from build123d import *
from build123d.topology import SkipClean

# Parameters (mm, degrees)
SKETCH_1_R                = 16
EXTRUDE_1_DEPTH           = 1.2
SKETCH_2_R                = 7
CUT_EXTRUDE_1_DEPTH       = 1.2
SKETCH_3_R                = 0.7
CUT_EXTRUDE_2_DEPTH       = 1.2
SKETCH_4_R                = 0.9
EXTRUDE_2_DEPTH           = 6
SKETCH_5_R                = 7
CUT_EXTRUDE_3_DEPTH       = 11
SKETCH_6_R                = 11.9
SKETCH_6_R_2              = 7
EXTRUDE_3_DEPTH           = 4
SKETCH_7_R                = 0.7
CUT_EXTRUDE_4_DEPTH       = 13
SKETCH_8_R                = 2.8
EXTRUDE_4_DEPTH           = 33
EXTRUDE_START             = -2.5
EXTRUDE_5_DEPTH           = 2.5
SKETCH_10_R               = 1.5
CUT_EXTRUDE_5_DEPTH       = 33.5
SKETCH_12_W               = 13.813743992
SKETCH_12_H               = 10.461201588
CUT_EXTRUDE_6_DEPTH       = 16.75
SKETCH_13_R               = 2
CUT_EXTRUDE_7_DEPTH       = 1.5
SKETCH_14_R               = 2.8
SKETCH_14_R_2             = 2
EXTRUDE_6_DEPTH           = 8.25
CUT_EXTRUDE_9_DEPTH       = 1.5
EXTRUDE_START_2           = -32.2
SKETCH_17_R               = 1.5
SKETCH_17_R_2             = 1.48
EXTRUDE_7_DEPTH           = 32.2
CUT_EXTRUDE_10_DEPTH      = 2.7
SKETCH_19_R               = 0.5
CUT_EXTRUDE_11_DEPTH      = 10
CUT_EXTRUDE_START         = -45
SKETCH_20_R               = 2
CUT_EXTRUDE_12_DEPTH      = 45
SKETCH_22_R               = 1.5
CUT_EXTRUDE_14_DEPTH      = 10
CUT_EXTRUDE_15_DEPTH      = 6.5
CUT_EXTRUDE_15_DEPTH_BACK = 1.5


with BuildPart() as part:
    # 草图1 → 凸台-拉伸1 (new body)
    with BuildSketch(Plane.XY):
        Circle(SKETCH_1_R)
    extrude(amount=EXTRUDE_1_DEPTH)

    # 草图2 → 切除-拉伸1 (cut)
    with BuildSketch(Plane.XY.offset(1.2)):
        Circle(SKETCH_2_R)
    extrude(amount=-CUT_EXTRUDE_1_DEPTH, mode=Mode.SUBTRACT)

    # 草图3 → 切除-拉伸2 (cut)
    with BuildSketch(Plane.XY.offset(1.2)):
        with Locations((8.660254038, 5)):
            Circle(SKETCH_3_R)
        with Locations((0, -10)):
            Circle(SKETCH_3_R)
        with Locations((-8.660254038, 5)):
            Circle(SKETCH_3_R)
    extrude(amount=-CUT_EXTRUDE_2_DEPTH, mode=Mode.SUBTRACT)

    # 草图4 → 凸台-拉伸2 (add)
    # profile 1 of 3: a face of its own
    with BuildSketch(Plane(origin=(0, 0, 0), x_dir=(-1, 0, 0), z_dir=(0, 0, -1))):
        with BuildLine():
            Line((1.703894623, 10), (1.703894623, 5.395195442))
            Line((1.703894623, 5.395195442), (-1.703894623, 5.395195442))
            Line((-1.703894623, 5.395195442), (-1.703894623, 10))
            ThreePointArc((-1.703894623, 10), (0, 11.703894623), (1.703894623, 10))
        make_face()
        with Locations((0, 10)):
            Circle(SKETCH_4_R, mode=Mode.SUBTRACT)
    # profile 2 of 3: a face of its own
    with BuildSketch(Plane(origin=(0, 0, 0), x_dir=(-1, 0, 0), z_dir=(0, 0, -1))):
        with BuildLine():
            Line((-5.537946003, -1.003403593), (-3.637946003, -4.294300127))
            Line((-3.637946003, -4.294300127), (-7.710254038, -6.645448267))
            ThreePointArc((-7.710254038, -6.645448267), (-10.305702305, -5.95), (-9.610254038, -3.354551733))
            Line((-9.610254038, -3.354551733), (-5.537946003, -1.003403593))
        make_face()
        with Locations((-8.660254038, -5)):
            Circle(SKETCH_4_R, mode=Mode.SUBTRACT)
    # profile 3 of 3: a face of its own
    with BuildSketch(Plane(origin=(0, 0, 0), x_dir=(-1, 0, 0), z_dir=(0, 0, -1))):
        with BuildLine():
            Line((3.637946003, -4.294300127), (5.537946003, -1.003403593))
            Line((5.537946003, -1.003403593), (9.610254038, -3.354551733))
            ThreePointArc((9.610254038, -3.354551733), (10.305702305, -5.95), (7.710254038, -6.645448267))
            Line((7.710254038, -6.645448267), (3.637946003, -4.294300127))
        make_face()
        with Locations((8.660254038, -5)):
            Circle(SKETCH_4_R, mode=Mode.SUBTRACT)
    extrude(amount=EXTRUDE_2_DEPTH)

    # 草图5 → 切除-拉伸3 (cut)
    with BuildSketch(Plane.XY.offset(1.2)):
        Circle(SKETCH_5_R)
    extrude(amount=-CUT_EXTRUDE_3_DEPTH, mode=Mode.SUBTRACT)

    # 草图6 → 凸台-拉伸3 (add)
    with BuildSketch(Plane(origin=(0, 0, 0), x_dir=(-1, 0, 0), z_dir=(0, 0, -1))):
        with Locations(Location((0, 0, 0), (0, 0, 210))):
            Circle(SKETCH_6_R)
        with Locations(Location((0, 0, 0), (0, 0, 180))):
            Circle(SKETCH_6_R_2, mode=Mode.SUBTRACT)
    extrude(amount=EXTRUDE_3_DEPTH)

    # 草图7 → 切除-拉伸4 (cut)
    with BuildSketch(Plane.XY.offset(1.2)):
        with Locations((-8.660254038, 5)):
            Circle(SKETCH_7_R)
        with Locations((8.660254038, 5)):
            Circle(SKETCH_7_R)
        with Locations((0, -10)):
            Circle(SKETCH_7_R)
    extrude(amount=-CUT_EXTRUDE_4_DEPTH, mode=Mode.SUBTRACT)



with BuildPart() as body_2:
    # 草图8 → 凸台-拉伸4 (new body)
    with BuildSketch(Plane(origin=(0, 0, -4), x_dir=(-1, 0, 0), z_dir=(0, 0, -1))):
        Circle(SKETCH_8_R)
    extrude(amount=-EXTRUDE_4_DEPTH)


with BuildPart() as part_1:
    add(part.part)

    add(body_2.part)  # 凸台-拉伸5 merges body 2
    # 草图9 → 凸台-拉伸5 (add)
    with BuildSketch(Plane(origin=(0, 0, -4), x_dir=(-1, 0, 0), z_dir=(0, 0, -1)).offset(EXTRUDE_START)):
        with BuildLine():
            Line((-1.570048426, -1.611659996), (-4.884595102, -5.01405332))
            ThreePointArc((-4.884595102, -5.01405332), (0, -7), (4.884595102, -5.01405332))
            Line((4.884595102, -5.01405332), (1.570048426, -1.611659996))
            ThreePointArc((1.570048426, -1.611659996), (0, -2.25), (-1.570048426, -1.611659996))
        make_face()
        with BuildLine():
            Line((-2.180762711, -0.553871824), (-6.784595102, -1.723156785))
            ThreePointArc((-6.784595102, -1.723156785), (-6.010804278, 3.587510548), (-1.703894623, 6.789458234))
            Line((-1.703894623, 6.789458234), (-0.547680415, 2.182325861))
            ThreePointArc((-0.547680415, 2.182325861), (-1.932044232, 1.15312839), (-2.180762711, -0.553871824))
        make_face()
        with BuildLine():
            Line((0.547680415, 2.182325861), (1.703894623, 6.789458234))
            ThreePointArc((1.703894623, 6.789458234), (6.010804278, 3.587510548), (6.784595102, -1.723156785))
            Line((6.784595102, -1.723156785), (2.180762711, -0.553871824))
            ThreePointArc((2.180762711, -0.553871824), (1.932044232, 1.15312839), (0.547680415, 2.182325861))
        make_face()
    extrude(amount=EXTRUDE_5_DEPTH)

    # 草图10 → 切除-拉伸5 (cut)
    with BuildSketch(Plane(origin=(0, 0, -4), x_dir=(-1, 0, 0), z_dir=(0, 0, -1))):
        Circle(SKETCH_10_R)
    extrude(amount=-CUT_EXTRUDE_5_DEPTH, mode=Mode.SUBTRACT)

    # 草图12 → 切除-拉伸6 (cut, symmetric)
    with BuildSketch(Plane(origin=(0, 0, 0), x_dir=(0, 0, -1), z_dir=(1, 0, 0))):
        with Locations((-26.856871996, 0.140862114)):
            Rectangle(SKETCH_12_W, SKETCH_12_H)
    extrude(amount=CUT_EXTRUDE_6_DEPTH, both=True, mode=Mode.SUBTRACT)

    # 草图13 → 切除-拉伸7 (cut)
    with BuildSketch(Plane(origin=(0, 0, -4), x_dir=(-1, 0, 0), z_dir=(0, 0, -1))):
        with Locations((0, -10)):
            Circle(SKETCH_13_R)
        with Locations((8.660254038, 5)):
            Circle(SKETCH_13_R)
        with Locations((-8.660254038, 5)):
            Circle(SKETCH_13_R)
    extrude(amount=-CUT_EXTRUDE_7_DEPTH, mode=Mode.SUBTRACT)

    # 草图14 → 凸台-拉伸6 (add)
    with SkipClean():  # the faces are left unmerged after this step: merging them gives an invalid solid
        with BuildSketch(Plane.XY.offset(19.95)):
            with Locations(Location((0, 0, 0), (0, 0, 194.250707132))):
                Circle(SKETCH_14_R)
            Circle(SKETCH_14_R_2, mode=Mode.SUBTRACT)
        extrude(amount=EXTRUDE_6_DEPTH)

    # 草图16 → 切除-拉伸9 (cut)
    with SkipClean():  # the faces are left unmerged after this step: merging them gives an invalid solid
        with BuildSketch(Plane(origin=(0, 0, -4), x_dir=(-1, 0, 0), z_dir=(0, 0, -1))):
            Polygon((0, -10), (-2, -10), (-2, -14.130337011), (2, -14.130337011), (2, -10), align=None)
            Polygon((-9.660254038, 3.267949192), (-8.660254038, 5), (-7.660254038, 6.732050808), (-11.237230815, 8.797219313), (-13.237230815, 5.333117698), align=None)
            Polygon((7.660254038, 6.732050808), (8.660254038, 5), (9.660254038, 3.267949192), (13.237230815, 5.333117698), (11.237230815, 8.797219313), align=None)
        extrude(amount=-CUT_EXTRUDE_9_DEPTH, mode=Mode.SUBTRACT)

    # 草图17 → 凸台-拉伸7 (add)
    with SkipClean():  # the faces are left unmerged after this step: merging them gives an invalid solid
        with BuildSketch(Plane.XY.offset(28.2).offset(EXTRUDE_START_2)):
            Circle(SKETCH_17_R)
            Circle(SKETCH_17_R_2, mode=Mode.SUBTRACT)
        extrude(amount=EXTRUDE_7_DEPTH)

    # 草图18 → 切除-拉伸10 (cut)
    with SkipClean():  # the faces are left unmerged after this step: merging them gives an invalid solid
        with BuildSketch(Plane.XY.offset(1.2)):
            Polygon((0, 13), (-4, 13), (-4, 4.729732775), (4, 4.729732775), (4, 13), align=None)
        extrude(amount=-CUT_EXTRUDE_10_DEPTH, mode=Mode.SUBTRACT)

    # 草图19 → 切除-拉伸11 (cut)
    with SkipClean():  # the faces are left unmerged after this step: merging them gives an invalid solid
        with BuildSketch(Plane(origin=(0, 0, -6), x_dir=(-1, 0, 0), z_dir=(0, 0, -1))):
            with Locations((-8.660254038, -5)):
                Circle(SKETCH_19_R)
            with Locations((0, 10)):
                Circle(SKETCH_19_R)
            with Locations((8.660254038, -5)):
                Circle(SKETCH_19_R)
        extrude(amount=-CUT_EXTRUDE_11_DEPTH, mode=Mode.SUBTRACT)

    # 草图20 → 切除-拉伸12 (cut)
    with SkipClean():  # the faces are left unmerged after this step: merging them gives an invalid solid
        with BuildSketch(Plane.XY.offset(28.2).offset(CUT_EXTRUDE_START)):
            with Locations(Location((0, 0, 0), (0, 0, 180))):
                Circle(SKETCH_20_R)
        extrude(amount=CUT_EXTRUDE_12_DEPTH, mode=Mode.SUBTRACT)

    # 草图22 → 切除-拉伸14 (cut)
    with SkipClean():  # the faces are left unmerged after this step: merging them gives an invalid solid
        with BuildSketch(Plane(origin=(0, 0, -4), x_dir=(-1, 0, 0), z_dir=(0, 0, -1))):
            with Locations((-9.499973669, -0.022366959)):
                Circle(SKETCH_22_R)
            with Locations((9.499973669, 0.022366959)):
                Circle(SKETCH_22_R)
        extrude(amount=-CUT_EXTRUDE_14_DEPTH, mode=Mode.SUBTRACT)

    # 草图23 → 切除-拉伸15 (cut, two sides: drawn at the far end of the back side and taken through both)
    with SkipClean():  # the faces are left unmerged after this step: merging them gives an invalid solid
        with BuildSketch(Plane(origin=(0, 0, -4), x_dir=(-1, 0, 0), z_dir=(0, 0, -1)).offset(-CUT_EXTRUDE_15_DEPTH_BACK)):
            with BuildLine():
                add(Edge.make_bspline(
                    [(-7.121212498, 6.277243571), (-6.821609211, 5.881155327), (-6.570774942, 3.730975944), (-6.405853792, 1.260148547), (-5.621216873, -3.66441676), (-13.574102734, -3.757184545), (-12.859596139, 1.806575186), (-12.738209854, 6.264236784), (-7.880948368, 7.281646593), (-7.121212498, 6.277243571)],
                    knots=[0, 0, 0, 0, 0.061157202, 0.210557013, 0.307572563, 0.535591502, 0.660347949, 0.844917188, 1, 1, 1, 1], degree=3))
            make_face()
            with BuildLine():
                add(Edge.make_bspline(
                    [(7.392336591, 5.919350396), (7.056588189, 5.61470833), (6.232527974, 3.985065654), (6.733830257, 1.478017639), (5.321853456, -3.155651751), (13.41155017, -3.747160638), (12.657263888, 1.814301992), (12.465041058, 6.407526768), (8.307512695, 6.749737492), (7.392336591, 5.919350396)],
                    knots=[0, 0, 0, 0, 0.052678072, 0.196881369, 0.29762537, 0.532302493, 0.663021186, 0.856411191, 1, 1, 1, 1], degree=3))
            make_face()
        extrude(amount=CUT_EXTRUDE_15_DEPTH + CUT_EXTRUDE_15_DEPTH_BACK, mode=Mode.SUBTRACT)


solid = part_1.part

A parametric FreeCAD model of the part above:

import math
import FreeCAD as App
import Part
import Sketcher
Q = App.Units.Quantity

doc = App.newDocument("Part")
body = doc.addObject("PartDesign::Body", "Body")

# Sketch on XY plane
sketch1 = body.newObject("Sketcher::SketchObject", "Sketch")
sketch1.AttachmentSupport = (doc.getObject("XY_Plane"), [""])
sketch1.MapMode = "FlatFace"
sketch1.addGeometry(Part.Circle(App.Vector(0, 0, 0), App.Vector(0, 0, 1), 16), False)
sketch1.addConstraint([
    Sketcher.Constraint("Coincident", 0, 3, -1, 1),
    Sketcher.Constraint("Diameter", 0, Q("32 mm")),
])
pad1 = body.newObject("PartDesign::Pad", "Pad")
pad1.Profile = sketch1
pad1.Length = 1.2

# Sketch on XY plane
sketch2 = body.newObject("Sketcher::SketchObject", "Sketch001")
sketch2.AttachmentSupport = (doc.getObject("XY_Plane"), [""])
sketch2.MapMode = "FlatFace"
sketch2.AttachmentOffset = App.Placement(App.Vector(0, 0, 1.2), App.Rotation())
sketch2.addGeometry(Part.Circle(App.Vector(0, 0, 0), App.Vector(0, 0, 1), 7), False)
sketch2.addConstraint([
    Sketcher.Constraint("Coincident", 0, 3, -1, 1),
    Sketcher.Constraint("Diameter", 0, Q("14 mm")),
])
pocket1 = body.newObject("PartDesign::Pocket", "Pocket")
pocket1.Profile = sketch2
pocket1.Length = 1.2

# Sketch on XY plane
sketch3 = body.newObject("Sketcher::SketchObject", "Sketch002")
sketch3.AttachmentSupport = (doc.getObject("XY_Plane"), [""])
sketch3.MapMode = "FlatFace"
sketch3.AttachmentOffset = App.Placement(App.Vector(0, 0, 1.2), App.Rotation())
sketch3.addGeometry([
    Part.Circle(App.Vector(8.660254, 5, 0), App.Vector(0, 0, 1), 0.7),
    Part.Circle(App.Vector(0, -10, 0), App.Vector(0, 0, 1), 0.7),
    Part.Circle(App.Vector(-8.660254, 5, 0), App.Vector(0, 0, 1), 0.7),
], False)
sketch3.addConstraint([
    Sketcher.Constraint("Equal", 0, 1),
    Sketcher.Constraint("Equal", 1, 2),
    Sketcher.Constraint("Symmetric", 0, 3, 2, 3, -2),
    Sketcher.Constraint("PointOnObject", 1, 3, -2),
    Sketcher.Constraint("Diameter", 0, Q("1.4 mm")),
    Sketcher.Constraint("DistanceY", -1, 1, 0, 3, Q("5 mm")),
    Sketcher.Constraint("DistanceY", 1, 3, -1, 1, Q("10 mm")),
    Sketcher.Constraint("DistanceX", 2, 3, 0, 3, Q("17.320508 mm")),
])
pocket2 = body.newObject("PartDesign::Pocket", "Pocket001")
pocket2.Profile = sketch3
pocket2.Length = 1.2

# Sketch on XY plane
sketch4 = body.newObject("Sketcher::SketchObject", "Sketch003")
sketch4.AttachmentSupport = (doc.getObject("XY_Plane"), [""])
sketch4.MapMode = "FlatFace"
sketch4.addGeometry([
    Part.LineSegment(App.Vector(-1.703895, 5.395195, 0), App.Vector(-1.703895, 10, 0)),  # 0
    Part.ArcOfCircle(Part.Circle(App.Vector(0, 10, 0), App.Vector(0, 0, 1), 1.703895), math.radians(0), math.radians(180)),  # 1
    Part.LineSegment(App.Vector(1.703895, 10, 0), App.Vector(1.703895, 5.395195, 0)),  # 2
    Part.LineSegment(App.Vector(1.703895, 5.395195, 0), App.Vector(-1.703895, 5.395195, 0)),  # 3
    Part.Circle(App.Vector(0, 10, 0), App.Vector(0, 0, 1), 0.9),  # 4
    Part.LineSegment(App.Vector(3.637946, -4.2943, 0), App.Vector(5.537946, -1.003404, 0)),  # 5
    Part.LineSegment(App.Vector(5.537946, -1.003404, 0), App.Vector(9.610254, -3.354552, 0)),  # 6
    Part.ArcOfCircle(Part.Circle(App.Vector(8.660254, -5, 0), App.Vector(0, 0, 1), 1.9), math.radians(-120), math.radians(60)),  # 7
    Part.LineSegment(App.Vector(7.710254, -6.645448, 0), App.Vector(3.637946, -4.2943, 0)),  # 8
    Part.Circle(App.Vector(8.660254, -5, 0), App.Vector(0, 0, 1), 0.9),  # 9
    Part.LineSegment(App.Vector(-5.537946, -1.003404, 0), App.Vector(-3.637946, -4.2943, 0)),  # 10
    Part.LineSegment(App.Vector(-3.637946, -4.2943, 0), App.Vector(-7.710254, -6.645448, 0)),  # 11
    Part.ArcOfCircle(Part.Circle(App.Vector(-8.660254, -5, 0), App.Vector(0, 0, 1), 1.9), math.radians(120), math.radians(300)),  # 12
    Part.LineSegment(App.Vector(-9.610254, -3.354552, 0), App.Vector(-5.537946, -1.003404, 0)),  # 13
    Part.Circle(App.Vector(-8.660254, -5, 0), App.Vector(0, 0, 1), 0.9),  # 14
], False)
sketch4.addConstraint([
    Sketcher.Constraint("Tangent", 0, 2, 1, 2),
    Sketcher.Constraint("Tangent", 1, 1, 2, 1),
    Sketcher.Constraint("Coincident", 2, 2, 3, 1),
    Sketcher.Constraint("Coincident", 3, 2, 0, 1),
    Sketcher.Constraint("Coincident", 5, 2, 6, 1),
    Sketcher.Constraint("Tangent", 6, 2, 7, 2),
    Sketcher.Constraint("Tangent", 7, 1, 8, 1),
    Sketcher.Constraint("Coincident", 8, 2, 5, 1),
    Sketcher.Constraint("Coincident", 10, 2, 11, 1),
    Sketcher.Constraint("Tangent", 11, 2, 12, 2),
    Sketcher.Constraint("Tangent", 12, 1, 13, 1),
    Sketcher.Constraint("Coincident", 13, 2, 10, 1),
    Sketcher.Constraint("Vertical", 0),
    Sketcher.Constraint("Vertical", 2),
    Sketcher.Constraint("Horizontal", 3),
    Sketcher.Constraint("Coincident", 4, 3, 1, 3),
    Sketcher.Constraint("Coincident", 9, 3, 7, 3),
    Sketcher.Constraint("Coincident", 14, 3, 12, 3),
    Sketcher.Constraint("Equal", 4, 9),
    Sketcher.Constraint("Equal", 7, 12),
    Sketcher.Constraint("Equal", 9, 14),
    Sketcher.Constraint("Symmetric", 7, 3, 12, 3, -2),
    Sketcher.Constraint("Symmetric", 8, 2, 10, 2, -2),
    Sketcher.Constraint("Symmetric", 5, 2, 13, 2, -2),
    Sketcher.Constraint("PointOnObject", 1, 3, -2),
    Sketcher.Constraint("Perpendicular", 5, 6),
    Sketcher.Constraint("Parallel", 6, 8),
    Sketcher.Constraint("Diameter", 4, Q("1.8 mm")),
    Sketcher.Constraint("Radius", 7, Q("1.9 mm")),
    Sketcher.Constraint("Angle", 5, Q("60 deg")),
    Sketcher.Constraint("DistanceY", -1, 1, 1, 3, Q("10 mm")),
    Sketcher.Constraint("DistanceY", 7, 3, -1, 1, Q("5 mm")),
    Sketcher.Constraint("Radius", 1, Q("1.703895 mm")),
    Sketcher.Constraint("DistanceY", 8, 2, -1, 1, Q("4.2943 mm")),
    Sketcher.Constraint("DistanceY", 5, 2, 2, 2, Q("6.398599 mm")),
    Sketcher.Constraint("DistanceX", 11, 2, 8, 2, Q("11.3482 mm")),
])
pad2 = body.newObject("PartDesign::Pad", "Pad001")
pad2.Profile = sketch4
pad2.Length = 6
pad2.Reversed = True

# Sketch on XY plane
sketch5 = body.newObject("Sketcher::SketchObject", "Sketch004")
sketch5.AttachmentSupport = (doc.getObject("XY_Plane"), [""])
sketch5.MapMode = "FlatFace"
sketch5.AttachmentOffset = App.Placement(App.Vector(0, 0, 1.2), App.Rotation())
sketch5.addGeometry(Part.Circle(App.Vector(0, 0, 0), App.Vector(0, 0, 1), 7), False)
sketch5.addConstraint([
    Sketcher.Constraint("Coincident", 0, 3, -1, 1),
    Sketcher.Constraint("Diameter", 0, Q("14 mm")),
])
pocket3 = body.newObject("PartDesign::Pocket", "Pocket002")
pocket3.Profile = sketch5
pocket3.Length = 11

# Sketch on XY plane
sketch6 = body.newObject("Sketcher::SketchObject", "Sketch005")
sketch6.AttachmentSupport = (doc.getObject("XY_Plane"), [""])
sketch6.MapMode = "FlatFace"
sketch6.addGeometry([
    Part.Circle(App.Vector(0, 0, 0), App.Vector(0, 0, 1), 11.9),
    Part.Circle(App.Vector(0, 0, 0), App.Vector(0, 0, 1), 7),
], False)
sketch6.addConstraint([
    Sketcher.Constraint("Coincident", 0, 3, -1, 1),
    Sketcher.Constraint("Coincident", 1, 3, -1, 1),
    Sketcher.Constraint("Diameter", 1, Q("14 mm")),
    Sketcher.Constraint("Diameter", 0, Q("23.8 mm")),
])
pad3 = body.newObject("PartDesign::Pad", "Pad002")
pad3.Profile = sketch6
pad3.Length = 4
pad3.Reversed = True

# Sketch on XY plane
sketch7 = body.newObject("Sketcher::SketchObject", "Sketch006")
sketch7.AttachmentSupport = (doc.getObject("XY_Plane"), [""])
sketch7.MapMode = "FlatFace"
sketch7.AttachmentOffset = App.Placement(App.Vector(0, 0, 1.2), App.Rotation())
sketch7.addGeometry([
    Part.Circle(App.Vector(-8.660254, 5, 0), App.Vector(0, 0, 1), 0.7),
    Part.Circle(App.Vector(8.660254, 5, 0), App.Vector(0, 0, 1), 0.7),
    Part.Circle(App.Vector(0, -10, 0), App.Vector(0, 0, 1), 0.7),
], False)
sketch7.addConstraint([
    Sketcher.Constraint("Equal", 0, 1),
    Sketcher.Constraint("Equal", 1, 2),
    Sketcher.Constraint("Symmetric", 0, 3, 1, 3, -2),
    Sketcher.Constraint("PointOnObject", 2, 3, -2),
    Sketcher.Constraint("Diameter", 0, Q("1.4 mm")),
    Sketcher.Constraint("DistanceY", -1, 1, 0, 3, Q("5 mm")),
    Sketcher.Constraint("DistanceY", 2, 3, -1, 1, Q("10 mm")),
    Sketcher.Constraint("DistanceX", 0, 3, 1, 3, Q("17.320508 mm")),
])
pocket4 = body.newObject("PartDesign::Pocket", "Pocket003")
pocket4.Profile = sketch7
pocket4.Length = 13
body2 = doc.addObject("PartDesign::Body", "Body001")

# Sketch on XY plane
sketch8 = body2.newObject("Sketcher::SketchObject", "Sketch007")
sketch8.AttachmentSupport = (doc.getObject("XY_Plane001"), [""])
sketch8.MapMode = "FlatFace"
sketch8.AttachmentOffset = App.Placement(App.Vector(0, 0, -4), App.Rotation())
sketch8.addGeometry(Part.Circle(App.Vector(0, 0, 0), App.Vector(0, 0, 1), 2.8), False)
sketch8.addConstraint([
    Sketcher.Constraint("Coincident", 0, 3, -1, 1),
    Sketcher.Constraint("Diameter", 0, Q("5.6 mm")),
])
pad4 = body2.newObject("PartDesign::Pad", "Pad003")
pad4.Profile = sketch8
pad4.Length = 33
body.AllowCompound = True
doc.recompute()

boolean = body.newObject("PartDesign::Boolean", "Boolean")
boolean.Type = "Fuse"
boolean.addObjects([body2])

# Sketch on XY plane
sketch9 = body.newObject("Sketcher::SketchObject", "Sketch008")
sketch9.AttachmentSupport = (doc.getObject("XY_Plane"), [""])
sketch9.MapMode = "FlatFace"
sketch9.AttachmentOffset = App.Placement(App.Vector(0, 0, -1.5), App.Rotation())
sketch9.addGeometry([
    Part.LineSegment(App.Vector(1.570048, -1.61166, 0), App.Vector(4.884595, -5.014053, 0)),  # 0
    Part.ArcOfCircle(Part.Circle(App.Vector(0, 0, 0), App.Vector(0, 0, 1), 7), math.radians(-134.250707), math.radians(-45.749293)),  # 1
    Part.LineSegment(App.Vector(-4.884595, -5.014053, 0), App.Vector(-1.570048, -1.61166, 0)),  # 2
    Part.ArcOfCircle(Part.Circle(App.Vector(0, 0, 0), App.Vector(0, 0, 1), 2.25), math.radians(-134.250707), math.radians(-45.749293)),  # 3
    Part.LineSegment(App.Vector(6.784595, -1.723157, 0), App.Vector(2.180763, -0.553872, 0)),  # 4
    Part.ArcOfCircle(Part.Circle(App.Vector(0, 0, 0), App.Vector(0, 0, 1), 2.25), math.radians(-14.250707), math.radians(75.911903)),  # 5
    Part.LineSegment(App.Vector(0.54768, 2.182326, 0), App.Vector(1.703895, 6.789458, 0)),  # 6
    Part.ArcOfCircle(Part.Circle(App.Vector(0, 0, 0), App.Vector(0, 0, 1), 7), math.radians(-14.250707), math.radians(75.911903)),  # 7
    Part.LineSegment(App.Vector(-1.703895, 6.789458, 0), App.Vector(-0.54768, 2.182326, 0)),  # 8
    Part.ArcOfCircle(Part.Circle(App.Vector(0, 0, 0), App.Vector(0, 0, 1), 2.25), math.radians(104.088097), math.radians(194.250707)),  # 9
    Part.LineSegment(App.Vector(-2.180763, -0.553872, 0), App.Vector(-6.784595, -1.723157, 0)),  # 10
    Part.ArcOfCircle(Part.Circle(App.Vector(0, 0, 0), App.Vector(0, 0, 1), 7), math.radians(104.088097), math.radians(194.250707)),  # 11
], False)
sketch9.addConstraint([
    Sketcher.Constraint("Coincident", 0, 2, 1, 2),
    Sketcher.Constraint("Coincident", 1, 1, 2, 1),
    Sketcher.Constraint("Coincident", 2, 2, 3, 1),
    Sketcher.Constraint("Coincident", 3, 2, 0, 1),
    Sketcher.Constraint("Coincident", 4, 2, 5, 1),
    Sketcher.Constraint("Coincident", 5, 2, 6, 1),
    Sketcher.Constraint("Coincident", 6, 2, 7, 2),
    Sketcher.Constraint("Coincident", 7, 1, 4, 1),
    Sketcher.Constraint("Coincident", 8, 2, 9, 1),
    Sketcher.Constraint("Coincident", 9, 2, 10, 1),
    Sketcher.Constraint("Coincident", 10, 2, 11, 2),
    Sketcher.Constraint("Coincident", 11, 1, 8, 1),
    Sketcher.Constraint("Coincident", 1, 3, -1, 1),
    Sketcher.Constraint("Coincident", 3, 3, -1, 1),
    Sketcher.Constraint("Coincident", 5, 3, -1, 1),
    Sketcher.Constraint("Coincident", 7, 3, -1, 1),
    Sketcher.Constraint("Coincident", 9, 3, -1, 1),
    Sketcher.Constraint("Coincident", 11, 3, -1, 1),
    Sketcher.Constraint("Equal", 3, 5),
    Sketcher.Constraint("Equal", 1, 7),
    Sketcher.Constraint("Equal", 5, 9),
    Sketcher.Constraint("Equal", 7, 11),
    Sketcher.Constraint("Horizontal", 0, 2, 1, 1),
    Sketcher.Constraint("Horizontal", 2, 2, 3, 2),
    Sketcher.Constraint("Horizontal", 5, 2, 8, 2),
    Sketcher.Constraint("Horizontal", 4, 2, 9, 2),
    Sketcher.Constraint("Horizontal", 7, 1, 10, 2),
    Sketcher.Constraint("Horizontal", 6, 2, 11, 1),
    Sketcher.Constraint("Radius", 1, Q("7 mm")),
    Sketcher.Constraint("Radius", 3, Q("2.25 mm")),
    Sketcher.Constraint("DistanceX", 0, 2, 7, 1, Q("1.9 mm")),
    Sketcher.Constraint("DistanceX", 2, 2, -1, 1, Q("1.570048 mm")),
    Sketcher.Constraint("DistanceY", 4, 2, -1, 1, Q("0.553872 mm")),
    Sketcher.Constraint("DistanceX", -1, 1, 5, 2, Q("0.54768 mm")),
    Sketcher.Constraint("DistanceY", -1, 1, 6, 2, Q("6.789458 mm")),
    Sketcher.Constraint("DistanceX", -1, 1, 0, 2, Q("4.884595 mm")),
])
pad5 = body.newObject("PartDesign::Pad", "Pad004")
pad5.Profile = sketch9
pad5.Length = 2.5
pad5.Reversed = True

# Sketch on XY plane
sketch10 = body.newObject("Sketcher::SketchObject", "Sketch009")
sketch10.AttachmentSupport = (doc.getObject("XY_Plane"), [""])
sketch10.MapMode = "FlatFace"
sketch10.AttachmentOffset = App.Placement(App.Vector(0, 0, -4), App.Rotation())
sketch10.addGeometry(Part.Circle(App.Vector(0, 0, 0), App.Vector(0, 0, 1), 1.5), False)
sketch10.addConstraint([
    Sketcher.Constraint("Coincident", 0, 3, -1, 1),
    Sketcher.Constraint("Diameter", 0, Q("3 mm")),
])
pocket5 = body.newObject("PartDesign::Pocket", "Pocket004")
pocket5.Profile = sketch10
pocket5.Length = 33.5
pocket5.Reversed = True

# Sketch on YZ plane
sketch11 = body.newObject("Sketcher::SketchObject", "Sketch010")
sketch11.AttachmentSupport = (doc.getObject("YZ_Plane"), [""])
sketch11.MapMode = "FlatFace"
sketch11.addGeometry([
    Part.LineSegment(App.Vector(5.371463, 33.763744, 0), App.Vector(-5.089739, 33.763744, 0)),
    Part.LineSegment(App.Vector(-5.089739, 33.763744, 0), App.Vector(-5.089739, 19.95, 0)),
    Part.LineSegment(App.Vector(-5.089739, 19.95, 0), App.Vector(5.371463, 19.95, 0)),
    Part.LineSegment(App.Vector(5.371463, 19.95, 0), App.Vector(5.371463, 33.763744, 0)),
], False)
sketch11.addConstraint([
    Sketcher.Constraint("Coincident", 0, 2, 1, 1),
    Sketcher.Constraint("Coincident", 1, 2, 2, 1),
    Sketcher.Constraint("Coincident", 2, 2, 3, 1),
    Sketcher.Constraint("Coincident", 3, 2, 0, 1),
    Sketcher.Constraint("Horizontal", 0),
    Sketcher.Constraint("Vertical", 1),
    Sketcher.Constraint("Horizontal", 2),
    Sketcher.Constraint("Vertical", 3),
    Sketcher.Constraint("DistanceY", -1, 1, 1, 2, Q("19.95 mm")),
    Sketcher.Constraint("DistanceX", 0, 2, 0, 1, Q("10.461202 mm")),
    Sketcher.Constraint("DistanceY", 1, 2, 1, 1, Q("13.813744 mm")),
    Sketcher.Constraint("DistanceX", 0, 2, -1, 1, Q("5.089739 mm")),
])
pocket6 = body.newObject("PartDesign::Pocket", "Pocket005")
pocket6.Profile = sketch11
pocket6.Length = 33.5
pocket6.Midplane = True

# Sketch on XY plane
sketch12 = body.newObject("Sketcher::SketchObject", "Sketch011")
sketch12.AttachmentSupport = (doc.getObject("XY_Plane"), [""])
sketch12.MapMode = "FlatFace"
sketch12.AttachmentOffset = App.Placement(App.Vector(0, 0, -4), App.Rotation())
sketch12.addGeometry([
    Part.Circle(App.Vector(0, -10, 0), App.Vector(0, 0, 1), 2),
    Part.Circle(App.Vector(-8.660254, 5, 0), App.Vector(0, 0, 1), 2),
    Part.Circle(App.Vector(8.660254, 5, 0), App.Vector(0, 0, 1), 2),
], False)
sketch12.addConstraint([
    Sketcher.Constraint("Equal", 0, 1),
    Sketcher.Constraint("Equal", 1, 2),
    Sketcher.Constraint("Symmetric", 1, 3, 2, 3, -2),
    Sketcher.Constraint("PointOnObject", 0, 3, -2),
    Sketcher.Constraint("Diameter", 0, Q("4 mm")),
    Sketcher.Constraint("DistanceY", 0, 3, -1, 1, Q("10 mm")),
    Sketcher.Constraint("DistanceY", -1, 1, 1, 3, Q("5 mm")),
    Sketcher.Constraint("DistanceX", 1, 3, 2, 3, Q("17.320508 mm")),
])
pocket7 = body.newObject("PartDesign::Pocket", "Pocket006")
pocket7.Profile = sketch12
pocket7.Length = 1.5
pocket7.Reversed = True

# Sketch on XY plane
sketch13 = body.newObject("Sketcher::SketchObject", "Sketch012")
sketch13.AttachmentSupport = (doc.getObject("XY_Plane"), [""])
sketch13.MapMode = "FlatFace"
sketch13.AttachmentOffset = App.Placement(App.Vector(0, 0, 19.95), App.Rotation())
sketch13.addGeometry([
    Part.Circle(App.Vector(0, 0, 0), App.Vector(0, 0, 1), 2.8),
    Part.Circle(App.Vector(0, 0, 0), App.Vector(0, 0, 1), 2),
], False)
sketch13.addConstraint([
    Sketcher.Constraint("Coincident", 0, 3, -1, 1),
    Sketcher.Constraint("Coincident", 1, 3, -1, 1),
    Sketcher.Constraint("Diameter", 1, Q("4 mm")),
    Sketcher.Constraint("Diameter", 0, Q("5.6 mm")),
])
pad6 = body.newObject("PartDesign::Pad", "Pad005")
pad6.Profile = sketch13
pad6.Length = 8.25

# Sketch on XY plane
sketch14 = body.newObject("Sketcher::SketchObject", "Sketch013")
sketch14.AttachmentSupport = (doc.getObject("XY_Plane"), [""])
sketch14.MapMode = "FlatFace"
sketch14.AttachmentOffset = App.Placement(App.Vector(0, 0, -4), App.Rotation())
sketch14.addGeometry([
    Part.LineSegment(App.Vector(2, -10, 0), App.Vector(2, -14.130337, 0)),  # 0
    Part.LineSegment(App.Vector(2, -14.130337, 0), App.Vector(-2, -14.130337, 0)),  # 1
    Part.LineSegment(App.Vector(-2, -14.130337, 0), App.Vector(-2, -10, 0)),  # 2
    Part.LineSegment(App.Vector(-2, -10, 0), App.Vector(2, -10, 0)),  # 3
    Part.LineSegment(App.Vector(9.660254, 3.267949, 0), App.Vector(8.660254, 5, 0)),  # 4
    Part.LineSegment(App.Vector(8.660254, 5, 0), App.Vector(7.660254, 6.732051, 0)),  # 5
    Part.LineSegment(App.Vector(7.660254, 6.732051, 0), App.Vector(11.237231, 8.797219, 0)),  # 6
    Part.LineSegment(App.Vector(11.237231, 8.797219, 0), App.Vector(13.237231, 5.333118, 0)),  # 7
    Part.LineSegment(App.Vector(13.237231, 5.333118, 0), App.Vector(9.660254, 3.267949, 0)),  # 8
    Part.LineSegment(App.Vector(-7.660254, 6.732051, 0), App.Vector(-8.660254, 5, 0)),  # 9
    Part.LineSegment(App.Vector(-8.660254, 5, 0), App.Vector(-9.660254, 3.267949, 0)),  # 10
    Part.LineSegment(App.Vector(-9.660254, 3.267949, 0), App.Vector(-13.237231, 5.333118, 0)),  # 11
    Part.LineSegment(App.Vector(-13.237231, 5.333118, 0), App.Vector(-11.237231, 8.797219, 0)),  # 12
    Part.LineSegment(App.Vector(-11.237231, 8.797219, 0), App.Vector(-7.660254, 6.732051, 0)),  # 13
], False)
sketch14.addConstraint([
    Sketcher.Constraint("Coincident", 0, 2, 1, 1),
    Sketcher.Constraint("Coincident", 1, 2, 2, 1),
    Sketcher.Constraint("Coincident", 2, 2, 3, 1),
    Sketcher.Constraint("Coincident", 3, 2, 0, 1),
    Sketcher.Constraint("Coincident", 4, 2, 5, 1),
    Sketcher.Constraint("Coincident", 5, 2, 6, 1),
    Sketcher.Constraint("Coincident", 6, 2, 7, 1),
    Sketcher.Constraint("Coincident", 7, 2, 8, 1),
    Sketcher.Constraint("Coincident", 8, 2, 4, 1),
    Sketcher.Constraint("Coincident", 9, 2, 10, 1),
    Sketcher.Constraint("Coincident", 10, 2, 11, 1),
    Sketcher.Constraint("Coincident", 11, 2, 12, 1),
    Sketcher.Constraint("Coincident", 12, 2, 13, 1),
    Sketcher.Constraint("Coincident", 13, 2, 9, 1),
    Sketcher.Constraint("Vertical", 0),
    Sketcher.Constraint("Horizontal", 1),
    Sketcher.Constraint("Vertical", 2),
    Sketcher.Constraint("Horizontal", 3),
    Sketcher.Constraint("Symmetric", 4, 2, 9, 2, -2),
    Sketcher.Constraint("Symmetric", 8, 2, 10, 2, -2),
    Sketcher.Constraint("Symmetric", 7, 2, 11, 2, -2),
    Sketcher.Constraint("Symmetric", 6, 2, 12, 2, -2),
    Sketcher.Constraint("Symmetric", 5, 2, 13, 2, -2),
    Sketcher.Constraint("Parallel", 4, 5),
    Sketcher.Constraint("Perpendicular", 5, 6),
    Sketcher.Constraint("Perpendicular", 6, 7),
    Sketcher.Constraint("Perpendicular", 7, 8),
    Sketcher.Constraint("Equal", 4, 5),
    Sketcher.Constraint("DistanceX", 1, 2, 1, 1, Q("4 mm")),
    Sketcher.Constraint("Angle", 4, Q("120 deg")),
    Sketcher.Constraint("Distance", 4, Q("2 mm")),
    Sketcher.Constraint("DistanceX", -1, 1, 0, 2, Q("2 mm")),
    Sketcher.Constraint("DistanceY", 2, 2, -1, 1, Q("10 mm")),
    Sketcher.Constraint("DistanceY", -1, 1, 4, 2, Q("5 mm")),
    Sketcher.Constraint("DistanceY", 0, 2, 0, 1, Q("4.130337 mm")),
    Sketcher.Constraint("DistanceX", -1, 1, 6, 2, Q("11.237231 mm")),
    Sketcher.Constraint("DistanceY", -1, 1, 6, 2, Q("8.797219 mm")),
])
pocket8 = body.newObject("PartDesign::Pocket", "Pocket007")
pocket8.Profile = sketch14
pocket8.Length = 1.5
pocket8.Reversed = True

# Sketch on XY plane
sketch15 = body.newObject("Sketcher::SketchObject", "Sketch014")
sketch15.AttachmentSupport = (doc.getObject("XY_Plane"), [""])
sketch15.MapMode = "FlatFace"
sketch15.AttachmentOffset = App.Placement(App.Vector(0, 0, -4), App.Rotation())
sketch15.addGeometry([
    Part.Circle(App.Vector(0, 0, 0), App.Vector(0, 0, 1), 1.5),
    Part.Circle(App.Vector(0, 0, 0), App.Vector(0, 0, 1), 1.48),
], False)
sketch15.addConstraint([
    Sketcher.Constraint("Coincident", 0, 3, -1, 1),
    Sketcher.Constraint("Coincident", 1, 3, -1, 1),
    Sketcher.Constraint("Diameter", 0, Q("3 mm")),
    Sketcher.Constraint("Diameter", 1, Q("2.96 mm")),
])
pad7 = body.newObject("PartDesign::Pad", "Pad006")
pad7.Profile = sketch15
pad7.Length = 32.2

# Sketch on XY plane
sketch16 = body.newObject("Sketcher::SketchObject", "Sketch015")
sketch16.AttachmentSupport = (doc.getObject("XY_Plane"), [""])
sketch16.MapMode = "FlatFace"
sketch16.AttachmentOffset = App.Placement(App.Vector(0, 0, 1.2), App.Rotation())
sketch16.addGeometry([
    Part.LineSegment(App.Vector(-4, 13, 0), App.Vector(-4, 4.729733, 0)),
    Part.LineSegment(App.Vector(-4, 4.729733, 0), App.Vector(4, 4.729733, 0)),
    Part.LineSegment(App.Vector(4, 4.729733, 0), App.Vector(4, 13, 0)),
    Part.LineSegment(App.Vector(4, 13, 0), App.Vector(-4, 13, 0)),
], False)
sketch16.addConstraint([
    Sketcher.Constraint("Coincident", 0, 2, 1, 1),
    Sketcher.Constraint("Coincident", 1, 2, 2, 1),
    Sketcher.Constraint("Coincident", 2, 2, 3, 1),
    Sketcher.Constraint("Coincident", 3, 2, 0, 1),
    Sketcher.Constraint("Vertical", 0),
    Sketcher.Constraint("Horizontal", 1),
    Sketcher.Constraint("Vertical", 2),
    Sketcher.Constraint("Horizontal", 3),
    Sketcher.Constraint("DistanceX", 1, 1, 1, 2, Q("8 mm")),
    Sketcher.Constraint("DistanceX", 0, 2, -1, 1, Q("4 mm")),
    Sketcher.Constraint("DistanceY", -1, 1, 2, 2, Q("13 mm")),
    Sketcher.Constraint("DistanceY", 0, 2, 0, 1, Q("8.270267 mm")),
])
pocket9 = body.newObject("PartDesign::Pocket", "Pocket008")
pocket9.Profile = sketch16
pocket9.Length = 2.7

# Sketch on XY plane
sketch17 = body.newObject("Sketcher::SketchObject", "Sketch016")
sketch17.AttachmentSupport = (doc.getObject("XY_Plane"), [""])
sketch17.MapMode = "FlatFace"
sketch17.AttachmentOffset = App.Placement(App.Vector(0, 0, -6), App.Rotation())
sketch17.addGeometry([
    Part.Circle(App.Vector(8.660254, -5, 0), App.Vector(0, 0, 1), 0.5),
    Part.Circle(App.Vector(0, 10, 0), App.Vector(0, 0, 1), 0.5),
    Part.Circle(App.Vector(-8.660254, -5, 0), App.Vector(0, 0, 1), 0.5),
], False)
sketch17.addConstraint([
    Sketcher.Constraint("Equal", 0, 1),
    Sketcher.Constraint("Equal", 1, 2),
    Sketcher.Constraint("Symmetric", 0, 3, 2, 3, -2),
    Sketcher.Constraint("PointOnObject", 1, 3, -2),
    Sketcher.Constraint("Diameter", 0, Q("1 mm")),
    Sketcher.Constraint("DistanceY", 0, 3, -1, 1, Q("5 mm")),
    Sketcher.Constraint("DistanceY", -1, 1, 1, 3, Q("10 mm")),
    Sketcher.Constraint("DistanceX", 2, 3, 0, 3, Q("17.320508 mm")),
])
pocket10 = body.newObject("PartDesign::Pocket", "Pocket009")
pocket10.Profile = sketch17
pocket10.Length = 10
pocket10.Reversed = True

# Sketch on XY plane
sketch18 = body.newObject("Sketcher::SketchObject", "Sketch017")
sketch18.AttachmentSupport = (doc.getObject("XY_Plane"), [""])
sketch18.MapMode = "FlatFace"
sketch18.AttachmentOffset = App.Placement(App.Vector(0, 0, -16.8), App.Rotation())
sketch18.addGeometry(Part.Circle(App.Vector(0, 0, 0), App.Vector(0, 0, 1), 2), False)
sketch18.addConstraint([
    Sketcher.Constraint("Coincident", 0, 3, -1, 1),
    Sketcher.Constraint("Diameter", 0, Q("4 mm")),
])
pocket11 = body.newObject("PartDesign::Pocket", "Pocket010")
pocket11.Profile = sketch18
pocket11.Length = 45
pocket11.Reversed = True

# Sketch on XY plane
sketch19 = body.newObject("Sketcher::SketchObject", "Sketch018")
sketch19.AttachmentSupport = (doc.getObject("XY_Plane"), [""])
sketch19.MapMode = "FlatFace"
sketch19.AttachmentOffset = App.Placement(App.Vector(0, 0, -4), App.Rotation())
sketch19.addGeometry([
    Part.Circle(App.Vector(9.499974, -0.022367, 0), App.Vector(0, 0, 1), 1.5),
    Part.Circle(App.Vector(-9.499974, 0.022367, 0), App.Vector(0, 0, 1), 1.5),
], False)
sketch19.addConstraint([
    Sketcher.Constraint("Equal", 0, 1),
    Sketcher.Constraint("Symmetric", 0, 3, 1, 3, -1, 1),
    Sketcher.Constraint("Diameter", 0, Q("3 mm")),
    Sketcher.Constraint("DistanceX", -1, 1, 0, 3, Q("9.499974 mm")),
    Sketcher.Constraint("DistanceY", 0, 3, -1, 1, Q("0.022367 mm")),
])
pocket12 = body.newObject("PartDesign::Pocket", "Pocket011")
pocket12.Profile = sketch19
pocket12.Length = 10
pocket12.Reversed = True

# Sketch on XY plane
sketch20 = body.newObject("Sketcher::SketchObject", "Sketch019")
sketch20.AttachmentSupport = (doc.getObject("XY_Plane"), [""])
sketch20.MapMode = "FlatFace"
sketch20.AttachmentOffset = App.Placement(App.Vector(0, 0, -4), App.Rotation())
sketch20.addGeometry([
    Part.BSplineCurve([App.Vector(7.121212, 6.277244, 0), App.Vector(6.821609, 5.881155, 0), App.Vector(6.570775, 3.730976, 0), App.Vector(6.405854, 1.260149, 0), App.Vector(5.621217, -3.664417, 0), App.Vector(13.574103, -3.757185, 0), App.Vector(12.859596, 1.806575, 0), App.Vector(12.73821, 6.264237, 0), App.Vector(7.880948, 7.281647, 0), App.Vector(7.121212, 6.277244, 0)], [4, 1, 1, 1, 1, 1, 1, 4], [0, 0.061157202, 0.210557013, 0.307572563, 0.535591502, 0.660347949, 0.844917188, 1], False, 3, [1, 1, 1, 1, 1, 1, 1, 1, 1, 1], False),
    Part.BSplineCurve([App.Vector(-7.392337, 5.91935, 0), App.Vector(-7.056588, 5.614708, 0), App.Vector(-6.232528, 3.985066, 0), App.Vector(-6.73383, 1.478018, 0), App.Vector(-5.321853, -3.155652, 0), App.Vector(-13.41155, -3.747161, 0), App.Vector(-12.657264, 1.814302, 0), App.Vector(-12.465041, 6.407527, 0), App.Vector(-8.307513, 6.749737, 0), App.Vector(-7.392337, 5.91935, 0)], [4, 1, 1, 1, 1, 1, 1, 4], [0, 0.052678072, 0.196881369, 0.29762537, 0.532302493, 0.663021186, 0.856411191, 1], False, 3, [1, 1, 1, 1, 1, 1, 1, 1, 1, 1], False),
], False)
sketch20.addConstraint([
    Sketcher.Constraint("Block", 0),
    Sketcher.Constraint("Block", 1),
])
pocket13 = body.newObject("PartDesign::Pocket", "Pocket012")
pocket13.Profile = sketch20
pocket13.Type = "TwoLengths"
pocket13.Length = 6.5
pocket13.Length2 = 1.5

doc.recompute()
